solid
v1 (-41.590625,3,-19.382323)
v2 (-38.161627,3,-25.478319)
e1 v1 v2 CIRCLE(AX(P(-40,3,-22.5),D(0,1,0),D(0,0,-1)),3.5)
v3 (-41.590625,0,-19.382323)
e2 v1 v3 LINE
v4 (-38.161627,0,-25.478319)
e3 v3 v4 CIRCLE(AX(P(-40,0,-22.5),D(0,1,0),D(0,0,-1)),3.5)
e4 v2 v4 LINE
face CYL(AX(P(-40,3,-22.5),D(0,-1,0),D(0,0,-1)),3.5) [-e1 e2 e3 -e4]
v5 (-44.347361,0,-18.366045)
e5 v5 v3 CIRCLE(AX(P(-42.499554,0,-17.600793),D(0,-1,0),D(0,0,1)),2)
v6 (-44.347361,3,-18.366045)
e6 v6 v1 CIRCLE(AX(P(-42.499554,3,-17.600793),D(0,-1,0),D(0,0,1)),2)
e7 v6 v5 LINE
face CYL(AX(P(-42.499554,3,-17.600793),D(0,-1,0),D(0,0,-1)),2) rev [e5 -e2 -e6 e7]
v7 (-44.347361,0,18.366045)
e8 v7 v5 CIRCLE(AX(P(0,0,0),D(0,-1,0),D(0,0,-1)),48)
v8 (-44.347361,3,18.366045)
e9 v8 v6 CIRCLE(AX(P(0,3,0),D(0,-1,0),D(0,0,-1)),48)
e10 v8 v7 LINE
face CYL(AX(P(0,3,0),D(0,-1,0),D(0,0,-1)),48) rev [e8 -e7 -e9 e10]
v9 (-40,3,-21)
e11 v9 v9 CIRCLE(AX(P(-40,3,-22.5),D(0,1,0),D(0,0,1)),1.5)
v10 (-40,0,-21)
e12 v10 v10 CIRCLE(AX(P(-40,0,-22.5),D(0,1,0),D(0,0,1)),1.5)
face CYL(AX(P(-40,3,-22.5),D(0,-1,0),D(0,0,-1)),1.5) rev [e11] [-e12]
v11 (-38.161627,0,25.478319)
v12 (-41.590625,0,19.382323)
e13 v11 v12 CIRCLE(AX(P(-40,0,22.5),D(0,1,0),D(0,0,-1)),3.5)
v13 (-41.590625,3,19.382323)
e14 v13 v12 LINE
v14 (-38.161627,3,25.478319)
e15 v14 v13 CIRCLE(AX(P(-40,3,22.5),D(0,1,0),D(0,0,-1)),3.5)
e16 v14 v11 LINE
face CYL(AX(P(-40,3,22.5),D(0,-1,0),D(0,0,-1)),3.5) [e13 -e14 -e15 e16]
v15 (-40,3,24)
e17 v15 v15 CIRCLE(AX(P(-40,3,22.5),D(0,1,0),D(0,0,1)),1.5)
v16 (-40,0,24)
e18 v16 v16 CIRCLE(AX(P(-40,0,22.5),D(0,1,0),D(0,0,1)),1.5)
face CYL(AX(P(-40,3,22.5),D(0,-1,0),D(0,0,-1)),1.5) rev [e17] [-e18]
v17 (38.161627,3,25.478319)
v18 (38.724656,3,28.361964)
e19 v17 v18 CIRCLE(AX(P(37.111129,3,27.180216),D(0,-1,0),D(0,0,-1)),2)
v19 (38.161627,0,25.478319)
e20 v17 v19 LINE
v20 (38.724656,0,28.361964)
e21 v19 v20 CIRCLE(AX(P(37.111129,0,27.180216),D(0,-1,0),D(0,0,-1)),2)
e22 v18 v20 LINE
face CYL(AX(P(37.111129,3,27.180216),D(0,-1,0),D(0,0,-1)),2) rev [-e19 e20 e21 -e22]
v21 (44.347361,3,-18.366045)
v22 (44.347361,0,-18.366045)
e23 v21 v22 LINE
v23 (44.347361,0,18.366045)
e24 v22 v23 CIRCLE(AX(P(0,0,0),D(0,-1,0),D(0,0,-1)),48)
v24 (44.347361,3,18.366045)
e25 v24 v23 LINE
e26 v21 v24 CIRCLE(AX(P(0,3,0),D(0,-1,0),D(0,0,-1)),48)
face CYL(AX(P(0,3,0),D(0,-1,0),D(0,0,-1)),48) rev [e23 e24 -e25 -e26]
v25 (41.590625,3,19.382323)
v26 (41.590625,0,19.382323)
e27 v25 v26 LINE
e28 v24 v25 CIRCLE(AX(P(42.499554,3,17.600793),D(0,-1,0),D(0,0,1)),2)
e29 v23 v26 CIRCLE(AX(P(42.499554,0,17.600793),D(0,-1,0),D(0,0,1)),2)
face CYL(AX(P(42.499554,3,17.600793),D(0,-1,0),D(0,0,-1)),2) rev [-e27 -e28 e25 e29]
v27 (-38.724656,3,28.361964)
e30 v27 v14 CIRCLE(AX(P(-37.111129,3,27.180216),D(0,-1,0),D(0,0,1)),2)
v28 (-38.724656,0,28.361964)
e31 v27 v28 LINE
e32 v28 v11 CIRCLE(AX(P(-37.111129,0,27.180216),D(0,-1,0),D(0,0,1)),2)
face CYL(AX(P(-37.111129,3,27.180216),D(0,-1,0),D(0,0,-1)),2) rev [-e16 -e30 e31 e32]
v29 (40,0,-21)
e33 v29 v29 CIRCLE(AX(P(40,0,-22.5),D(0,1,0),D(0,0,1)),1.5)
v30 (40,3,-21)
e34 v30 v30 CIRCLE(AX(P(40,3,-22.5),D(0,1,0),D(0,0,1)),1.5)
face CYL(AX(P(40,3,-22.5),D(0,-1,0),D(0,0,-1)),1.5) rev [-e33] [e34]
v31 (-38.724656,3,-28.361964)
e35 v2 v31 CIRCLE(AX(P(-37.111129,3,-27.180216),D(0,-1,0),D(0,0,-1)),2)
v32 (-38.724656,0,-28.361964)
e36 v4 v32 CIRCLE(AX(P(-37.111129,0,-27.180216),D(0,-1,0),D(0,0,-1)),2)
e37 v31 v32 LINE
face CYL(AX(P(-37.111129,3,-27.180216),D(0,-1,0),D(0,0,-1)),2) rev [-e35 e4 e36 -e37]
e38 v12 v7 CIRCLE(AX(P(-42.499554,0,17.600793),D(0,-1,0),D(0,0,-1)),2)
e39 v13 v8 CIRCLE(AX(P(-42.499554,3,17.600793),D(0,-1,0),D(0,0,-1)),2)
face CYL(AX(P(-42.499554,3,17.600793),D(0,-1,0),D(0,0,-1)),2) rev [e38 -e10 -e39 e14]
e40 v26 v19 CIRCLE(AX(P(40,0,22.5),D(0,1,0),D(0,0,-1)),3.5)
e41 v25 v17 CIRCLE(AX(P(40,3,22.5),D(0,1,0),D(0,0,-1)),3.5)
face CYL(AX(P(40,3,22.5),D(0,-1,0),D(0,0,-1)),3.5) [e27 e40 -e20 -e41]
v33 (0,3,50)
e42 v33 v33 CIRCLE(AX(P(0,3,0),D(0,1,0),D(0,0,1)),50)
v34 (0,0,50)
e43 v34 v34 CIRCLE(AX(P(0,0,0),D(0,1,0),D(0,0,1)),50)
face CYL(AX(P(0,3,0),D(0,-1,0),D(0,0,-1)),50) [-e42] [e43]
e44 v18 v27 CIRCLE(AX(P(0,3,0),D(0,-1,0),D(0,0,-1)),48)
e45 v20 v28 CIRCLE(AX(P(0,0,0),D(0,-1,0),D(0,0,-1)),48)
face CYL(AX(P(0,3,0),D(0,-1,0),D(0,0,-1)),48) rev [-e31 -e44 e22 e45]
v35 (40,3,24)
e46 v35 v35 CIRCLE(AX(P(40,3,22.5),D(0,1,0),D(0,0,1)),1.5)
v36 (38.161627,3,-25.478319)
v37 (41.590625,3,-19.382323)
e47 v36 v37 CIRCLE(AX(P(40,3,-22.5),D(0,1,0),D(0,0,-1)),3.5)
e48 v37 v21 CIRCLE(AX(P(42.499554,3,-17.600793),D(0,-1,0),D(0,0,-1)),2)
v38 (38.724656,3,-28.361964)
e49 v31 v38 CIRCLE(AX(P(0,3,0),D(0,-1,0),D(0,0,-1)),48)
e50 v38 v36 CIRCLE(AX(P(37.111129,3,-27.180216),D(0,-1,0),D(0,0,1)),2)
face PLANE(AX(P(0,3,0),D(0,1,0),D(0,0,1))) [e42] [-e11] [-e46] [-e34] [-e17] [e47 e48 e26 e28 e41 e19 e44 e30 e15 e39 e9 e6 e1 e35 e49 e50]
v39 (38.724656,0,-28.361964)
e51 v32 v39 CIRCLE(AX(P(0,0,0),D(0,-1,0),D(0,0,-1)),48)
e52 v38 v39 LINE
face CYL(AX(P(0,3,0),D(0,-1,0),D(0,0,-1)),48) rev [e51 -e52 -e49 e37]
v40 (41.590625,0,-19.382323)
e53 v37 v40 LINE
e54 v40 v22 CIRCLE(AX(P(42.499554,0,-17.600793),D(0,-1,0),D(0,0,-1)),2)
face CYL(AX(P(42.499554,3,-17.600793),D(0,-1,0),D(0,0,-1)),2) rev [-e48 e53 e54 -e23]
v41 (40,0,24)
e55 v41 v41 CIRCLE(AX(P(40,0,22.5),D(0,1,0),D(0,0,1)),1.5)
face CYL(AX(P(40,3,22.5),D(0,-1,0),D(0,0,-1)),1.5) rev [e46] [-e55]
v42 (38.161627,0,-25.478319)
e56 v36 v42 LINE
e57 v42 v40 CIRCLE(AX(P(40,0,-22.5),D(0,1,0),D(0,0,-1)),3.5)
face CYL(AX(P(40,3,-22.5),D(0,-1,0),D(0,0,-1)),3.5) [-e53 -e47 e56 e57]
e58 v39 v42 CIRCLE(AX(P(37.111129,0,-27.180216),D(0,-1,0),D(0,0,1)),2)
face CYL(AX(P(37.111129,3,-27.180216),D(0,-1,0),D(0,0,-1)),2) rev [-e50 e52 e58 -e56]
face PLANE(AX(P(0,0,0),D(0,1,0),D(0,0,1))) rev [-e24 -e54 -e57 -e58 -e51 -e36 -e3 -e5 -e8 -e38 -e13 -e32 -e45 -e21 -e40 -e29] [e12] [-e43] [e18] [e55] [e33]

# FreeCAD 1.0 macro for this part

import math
import FreeCAD as App
import Part
import Sketcher
Q = App.Units.Quantity

doc = App.newDocument("Part")
body = doc.addObject("PartDesign::Body", "Body")

# Sketch on XZ plane
sketch1 = doc.addObject("Sketcher::SketchObject", "Sketch")
body.addObject(sketch1)
sketch1.AttachmentSupport = (doc.XZ_Plane, [""])
sketch1.MapMode = "FlatFace"
sketch1.addGeometry(Part.Circle(App.Vector(0, 0, 0), App.Vector(0, 0, 1), 50), False)
sketch1.addGeometry(Part.Circle(App.Vector(-40, -22.5, 0), App.Vector(0, 0, 1), 1.5), False)
sketch1.addGeometry(Part.Circle(App.Vector(-40, 22.5, 0), App.Vector(0, 0, 1), 1.5), False)
sketch1.addGeometry(Part.Circle(App.Vector(40, -22.5, 0), App.Vector(0, 0, 1), 1.5), False)
sketch1.addGeometry(Part.Circle(App.Vector(40, 22.5, 0), App.Vector(0, 0, 1), 1.5), False)
sketch1.addConstraint(Sketcher.Constraint("Coincident", 0, 3, -1, 1))
sketch1.addConstraint(Sketcher.Constraint("Equal", 1, 2))
sketch1.addConstraint(Sketcher.Constraint("Equal", 2, 3))
sketch1.addConstraint(Sketcher.Constraint("Equal", 3, 4))
sketch1.addConstraint(Sketcher.Constraint("Symmetric", 2, 3, 3, 3, -1, 1))
sketch1.addConstraint(Sketcher.Constraint("Symmetric", 1, 3, 4, 3, -1, 1))
sketch1.addConstraint(Sketcher.Constraint("Symmetric", 1, 3, 3, 3, -2))
sketch1.addConstraint(Sketcher.Constraint("Diameter", 0, Q("100 mm")))
sketch1.addConstraint(Sketcher.Constraint("Diameter", 1, Q("3 mm")))
sketch1.addConstraint(Sketcher.Constraint("DistanceX", 1, 3, -1, 1, Q("40 mm")))
sketch1.addConstraint(Sketcher.Constraint("DistanceY", 1, 3, 2, 3, Q("45 mm")))
pad1 = doc.addObject("PartDesign::Pad", "Pad")
body.addObject(pad1)
pad1.Profile = sketch1
pad1.Length = 3
pad1.Reversed = True

# Sketch on XZ plane
sketch2 = doc.addObject("Sketcher::SketchObject", "Sketch001")
body.addObject(sketch2)
sketch2.AttachmentSupport = (doc.XZ_Plane, [""])
sketch2.MapMode = "FlatFace"
sketch2.addGeometry(Part.ArcOfCircle(Part.Circle(App.Vector(0, 0, 0), App.Vector(0, 0, 1), 48), math.radians(36), math.radians(144)), False)
sketch2.addGeometry(Part.ArcOfCircle(Part.Circle(App.Vector(-37.1, 27.2, 0), App.Vector(0, 0, 1), 2), math.radians(144), math.radians(238)), False)
sketch2.addGeometry(Part.ArcOfCircle(Part.Circle(App.Vector(-40, 22.5, 0), App.Vector(0, 0, 1), 3.5), math.radians(-117), math.radians(58)), False)
sketch2.addGeometry(Part.ArcOfCircle(Part.Circle(App.Vector(-42.5, 17.6, 0), App.Vector(0, 0, 1), 2), math.radians(63), math.radians(158)), False)
sketch2.addGeometry(Part.ArcOfCircle(Part.Circle(App.Vector(0, 0, 0), App.Vector(0, 0, 1), 48), math.radians(158), math.radians(202)), False)
sketch2.addGeometry(Part.ArcOfCircle(Part.Circle(App.Vector(-42.5, -17.6, 0), App.Vector(0, 0, 1), 2), math.radians(-158), math.radians(-63)), False)
sketch2.addGeometry(Part.ArcOfCircle(Part.Circle(App.Vector(-40, -22.5, 0), App.Vector(0, 0, 1), 3.5), math.radians(-58), math.radians(117)), False)
sketch2.addGeometry(Part.ArcOfCircle(Part.Circle(App.Vector(-37.1, -27.2, 0), App.Vector(0, 0, 1), 2), math.radians(122), math.radians(216)), False)
sketch2.addGeometry(Part.ArcOfCircle(Part.Circle(App.Vector(0, 0, 0), App.Vector(0, 0, 1), 48), math.radians(-144), math.radians(-36)), False)
sketch2.addGeometry(Part.ArcOfCircle(Part.Circle(App.Vector(37.1, -27.2, 0), App.Vector(0, 0, 1), 2), math.radians(-36), math.radians(58)), False)
sketch2.addGeometry(Part.ArcOfCircle(Part.Circle(App.Vector(40, -22.5, 0), App.Vector(0, 0, 1), 3.5), math.radians(63), math.radians(238)), False)
sketch2.addGeometry(Part.ArcOfCircle(Part.Circle(App.Vector(42.5, -17.6, 0), App.Vector(0, 0, 1), 2), math.radians(-117), math.radians(-22)), False)
sketch2.addGeometry(Part.ArcOfCircle(Part.Circle(App.Vector(0, 0, 0), App.Vector(0, 0, 1), 48), math.radians(-22), math.radians(22)), False)
sketch2.addGeometry(Part.ArcOfCircle(Part.Circle(App.Vector(42.5, 17.6, 0), App.Vector(0, 0, 1), 2), math.radians(22), math.radians(117)), False)
sketch2.addGeometry(Part.ArcOfCircle(Part.Circle(App.Vector(40, 22.5, 0), App.Vector(0, 0, 1), 3.5), math.radians(122), math.radians(297)), False)
sketch2.addGeometry(Part.ArcOfCircle(Part.Circle(App.Vector(37.1, 27.2, 0), App.Vector(0, 0, 1), 2), math.radians(-58), math.radians(36)), False)
sketch2.addConstraint(Sketcher.Constraint("Tangent", 0, 2, 1, 1))
sketch2.addConstraint(Sketcher.Constraint("Tangent", 1, 2, 2, 2))
sketch2.addConstraint(Sketcher.Constraint("Tangent", 2, 1, 3, 1))
sketch2.addConstraint(Sketcher.Constraint("Tangent", 3, 2, 4, 1))
sketch2.addConstraint(Sketcher.Constraint("Tangent", 4, 2, 5, 1))
sketch2.addConstraint(Sketcher.Constraint("Tangent", 5, 2, 6, 2))
sketch2.addConstraint(Sketcher.Constraint("Tangent", 6, 1, 7, 1))
sketch2.addConstraint(Sketcher.Constraint("Tangent", 7, 2, 8, 1))
sketch2.addConstraint(Sketcher.Constraint("Tangent", 8, 2, 9, 1))
sketch2.addConstraint(Sketcher.Constraint("Tangent", 9, 2, 10, 2))
sketch2.addConstraint(Sketcher.Constraint("Tangent", 10, 1, 11, 1))
sketch2.addConstraint(Sketcher.Constraint("Tangent", 11, 2, 12, 1))
sketch2.addConstraint(Sketcher.Constraint("Tangent", 12, 2, 13, 1))
sketch2.addConstraint(Sketcher.Constraint("Tangent", 13, 2, 14, 2))
sketch2.addConstraint(Sketcher.Constraint("Tangent", 14, 1, 15, 1))
sketch2.addConstraint(Sketcher.Constraint("Tangent", 15, 2, 0, 1))
sketch2.addConstraint(Sketcher.Constraint("Coincident", 0, 3, -1, 1))
sketch2.addConstraint(Sketcher.Constraint("Coincident", 4, 3, -1, 1))
sketch2.addConstraint(Sketcher.Constraint("Coincident", 8, 3, -1, 1))
sketch2.addConstraint(Sketcher.Constraint("Coincident", 12, 3, -1, 1))
sketch2.addConstraint(Sketcher.Constraint("Equal", 1, 3))
sketch2.addConstraint(Sketcher.Constraint("Equal", 0, 4))
sketch2.addConstraint(Sketcher.Constraint("Equal", 3, 5))
sketch2.addConstraint(Sketcher.Constraint("Equal", 2, 6))
sketch2.addConstraint(Sketcher.Constraint("Equal", 5, 7))
sketch2.addConstraint(Sketcher.Constraint("Equal", 4, 8))
sketch2.addConstraint(Sketcher.Constraint("Equal", 7, 9))
sketch2.addConstraint(Sketcher.Constraint("Equal", 6, 10))
sketch2.addConstraint(Sketcher.Constraint("Equal", 9, 11))
sketch2.addConstraint(Sketcher.Constraint("Equal", 8, 12))
sketch2.addConstraint(Sketcher.Constraint("Equal", 11, 13))
sketch2.addConstraint(Sketcher.Constraint("Equal", 10, 14))
sketch2.addConstraint(Sketcher.Constraint("Equal", 13, 15))
sketch2.addConstraint(Sketcher.Constraint("Symmetric", 2, 3, 10, 3, -1, 1))
sketch2.addConstraint(Sketcher.Constraint("Symmetric", 6, 3, 14, 3, -1, 1))
sketch2.addConstraint(Sketcher.Constraint("Symmetric", 6, 3, 10, 3, -2))
sketch2.addConstraint(Sketcher.Constraint("Radius", 0, Q("48 mm")))
sketch2.addConstraint(Sketcher.Constraint("Radius", 1, Q("2 mm")))
sketch2.addConstraint(Sketcher.Constraint("Radius", 2, Q("3.5 mm")))
sketch2.addConstraint(Sketcher.Constraint("DistanceX", 2, 3, -1, 1, Q("40 mm")))
sketch2.addConstraint(Sketcher.Constraint("DistanceY", 6, 3, 2, 3, Q("45 mm")))
pocket1 = doc.addObject("PartDesign::Pocket", "Pocket")
body.addObject(pocket1)
pocket1.Profile = sketch2
pocket1.Type = "ThroughAll"

doc.recompute()
